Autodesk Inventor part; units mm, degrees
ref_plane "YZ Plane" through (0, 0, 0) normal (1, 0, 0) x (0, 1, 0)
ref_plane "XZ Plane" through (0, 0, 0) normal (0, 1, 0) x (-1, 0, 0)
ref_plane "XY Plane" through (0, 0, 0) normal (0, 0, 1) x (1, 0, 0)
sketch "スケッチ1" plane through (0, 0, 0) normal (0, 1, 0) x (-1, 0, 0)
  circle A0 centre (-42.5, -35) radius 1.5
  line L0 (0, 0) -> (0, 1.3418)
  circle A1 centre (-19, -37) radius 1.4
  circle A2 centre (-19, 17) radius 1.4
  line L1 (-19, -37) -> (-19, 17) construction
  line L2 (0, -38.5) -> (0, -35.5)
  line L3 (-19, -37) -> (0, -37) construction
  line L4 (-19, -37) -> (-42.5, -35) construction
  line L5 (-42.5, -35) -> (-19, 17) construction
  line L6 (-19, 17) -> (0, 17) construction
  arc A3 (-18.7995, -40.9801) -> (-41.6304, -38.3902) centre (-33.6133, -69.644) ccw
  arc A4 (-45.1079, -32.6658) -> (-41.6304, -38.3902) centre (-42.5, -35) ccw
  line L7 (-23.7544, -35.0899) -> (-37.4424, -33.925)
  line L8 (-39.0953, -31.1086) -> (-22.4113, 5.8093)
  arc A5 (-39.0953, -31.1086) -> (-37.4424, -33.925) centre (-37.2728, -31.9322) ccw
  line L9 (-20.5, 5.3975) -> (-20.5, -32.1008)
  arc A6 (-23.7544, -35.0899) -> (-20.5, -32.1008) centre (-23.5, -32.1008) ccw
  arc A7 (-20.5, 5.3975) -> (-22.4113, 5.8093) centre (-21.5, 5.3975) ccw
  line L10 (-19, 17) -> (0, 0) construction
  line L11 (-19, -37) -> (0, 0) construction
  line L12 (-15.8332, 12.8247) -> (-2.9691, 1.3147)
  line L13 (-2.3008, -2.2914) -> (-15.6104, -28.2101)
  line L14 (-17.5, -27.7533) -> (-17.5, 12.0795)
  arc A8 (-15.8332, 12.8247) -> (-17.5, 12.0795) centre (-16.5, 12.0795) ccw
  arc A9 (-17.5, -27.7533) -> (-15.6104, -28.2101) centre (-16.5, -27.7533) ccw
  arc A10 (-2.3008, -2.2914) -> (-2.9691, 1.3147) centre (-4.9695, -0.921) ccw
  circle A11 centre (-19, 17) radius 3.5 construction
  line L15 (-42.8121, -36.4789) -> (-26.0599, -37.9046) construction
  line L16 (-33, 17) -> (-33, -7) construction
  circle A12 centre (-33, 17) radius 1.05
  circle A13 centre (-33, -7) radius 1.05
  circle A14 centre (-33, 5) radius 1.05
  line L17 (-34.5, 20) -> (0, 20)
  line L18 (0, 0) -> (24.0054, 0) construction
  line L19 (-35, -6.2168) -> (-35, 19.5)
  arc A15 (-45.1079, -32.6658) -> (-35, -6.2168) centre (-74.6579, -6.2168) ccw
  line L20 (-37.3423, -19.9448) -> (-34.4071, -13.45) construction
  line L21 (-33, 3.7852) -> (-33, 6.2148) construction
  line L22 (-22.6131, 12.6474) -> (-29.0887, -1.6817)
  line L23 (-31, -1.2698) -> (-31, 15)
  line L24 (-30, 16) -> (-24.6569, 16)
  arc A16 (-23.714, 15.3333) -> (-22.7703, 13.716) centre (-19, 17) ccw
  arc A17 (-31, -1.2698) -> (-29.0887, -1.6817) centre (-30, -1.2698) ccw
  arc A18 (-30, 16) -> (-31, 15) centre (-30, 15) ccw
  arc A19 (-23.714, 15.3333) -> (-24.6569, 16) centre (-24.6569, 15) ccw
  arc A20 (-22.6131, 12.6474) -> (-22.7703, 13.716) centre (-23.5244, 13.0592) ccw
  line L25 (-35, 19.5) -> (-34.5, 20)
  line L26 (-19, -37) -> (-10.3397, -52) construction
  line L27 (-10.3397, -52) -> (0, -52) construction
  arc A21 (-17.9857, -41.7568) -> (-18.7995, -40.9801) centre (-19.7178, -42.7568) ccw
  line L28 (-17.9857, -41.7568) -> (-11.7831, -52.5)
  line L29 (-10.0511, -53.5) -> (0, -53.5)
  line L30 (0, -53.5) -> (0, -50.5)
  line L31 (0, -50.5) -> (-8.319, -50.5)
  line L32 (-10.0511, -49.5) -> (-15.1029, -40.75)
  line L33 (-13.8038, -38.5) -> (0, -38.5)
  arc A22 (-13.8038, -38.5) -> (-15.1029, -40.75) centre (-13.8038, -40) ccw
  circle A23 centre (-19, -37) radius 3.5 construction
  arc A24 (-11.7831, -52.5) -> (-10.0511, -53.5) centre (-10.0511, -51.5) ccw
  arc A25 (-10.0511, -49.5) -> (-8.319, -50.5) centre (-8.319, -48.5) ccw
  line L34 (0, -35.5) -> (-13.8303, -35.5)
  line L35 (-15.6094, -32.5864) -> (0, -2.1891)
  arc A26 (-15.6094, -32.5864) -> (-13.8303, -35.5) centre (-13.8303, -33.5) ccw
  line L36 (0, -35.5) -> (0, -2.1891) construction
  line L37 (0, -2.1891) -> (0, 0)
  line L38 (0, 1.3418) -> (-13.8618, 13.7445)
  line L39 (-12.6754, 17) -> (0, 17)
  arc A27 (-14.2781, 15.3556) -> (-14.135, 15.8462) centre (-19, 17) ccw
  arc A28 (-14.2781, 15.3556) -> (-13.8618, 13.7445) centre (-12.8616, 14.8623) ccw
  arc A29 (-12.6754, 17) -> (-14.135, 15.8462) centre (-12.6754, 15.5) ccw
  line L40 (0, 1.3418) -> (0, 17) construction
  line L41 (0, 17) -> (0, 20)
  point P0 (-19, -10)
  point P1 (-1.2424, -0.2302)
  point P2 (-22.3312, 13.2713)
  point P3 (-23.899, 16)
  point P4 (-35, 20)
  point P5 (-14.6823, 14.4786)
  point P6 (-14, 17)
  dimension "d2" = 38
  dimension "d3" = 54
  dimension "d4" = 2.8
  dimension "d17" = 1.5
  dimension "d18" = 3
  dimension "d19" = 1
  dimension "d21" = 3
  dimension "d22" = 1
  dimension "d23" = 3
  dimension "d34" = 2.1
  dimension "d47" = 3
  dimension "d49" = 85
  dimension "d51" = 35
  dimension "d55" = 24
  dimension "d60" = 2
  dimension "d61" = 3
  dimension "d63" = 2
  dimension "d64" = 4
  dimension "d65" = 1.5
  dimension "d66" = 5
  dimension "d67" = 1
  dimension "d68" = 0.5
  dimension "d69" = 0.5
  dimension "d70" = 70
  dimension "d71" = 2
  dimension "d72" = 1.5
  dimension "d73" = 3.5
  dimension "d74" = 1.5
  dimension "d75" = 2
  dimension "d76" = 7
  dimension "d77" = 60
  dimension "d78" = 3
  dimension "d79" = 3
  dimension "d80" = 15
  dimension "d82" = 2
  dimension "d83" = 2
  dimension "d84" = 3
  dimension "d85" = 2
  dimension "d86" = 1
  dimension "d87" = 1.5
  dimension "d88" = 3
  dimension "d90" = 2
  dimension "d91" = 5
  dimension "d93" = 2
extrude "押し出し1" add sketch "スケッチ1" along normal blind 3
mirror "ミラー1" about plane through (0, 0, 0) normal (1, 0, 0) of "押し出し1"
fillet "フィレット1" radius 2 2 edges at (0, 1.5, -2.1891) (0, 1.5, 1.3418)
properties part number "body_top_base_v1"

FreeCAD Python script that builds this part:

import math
import FreeCAD as App
import Part
import Sketcher

V = App.Vector
Q = App.Units.Quantity


def edges_at(feature, points):
    """Names of the edges that pass closest to the given points."""
    edges = feature.Shape.Edges
    near = lambda p: min(range(len(edges)), key=lambda i: edges[i].distToShape(Part.Vertex(*p))[0])
    return sorted({f"Edge{near(p) + 1}" for p in points})

doc = App.newDocument("Part")
params = doc.addObject("Spreadsheet::Sheet", "Params")
for row, (alias, value) in enumerate([
    ("sketch1_diameter", "3 mm"),
    ("sketch1_radius", "2 mm"),
    ("sketch1_radius2", "3 mm"),
    ("sketch1_radius3", "1 mm"),
    ("sketch1_radius4", "5 mm"),
    ("pad1_length", "3 mm"),
    ("fillet_radius", "2 mm"),
], start=1):
    params.set(f"A{row}", alias)
    params.set(f"B{row}", "=" + value)
    params.setAlias(f"B{row}", alias)

body = doc.addObject("PartDesign::Body", "Body")

# Sketch on XZ plane
sketch1 = body.newObject("Sketcher::SketchObject", "Sketch")
sketch1.AttachmentSupport = (doc.getObject("XZ_Plane"), [""])
sketch1.MapMode = "FlatFace"
sketch1.addGeometry(Part.LineSegment(V(0, -2.2, 0), V(0, 1.3, 0)), False)
sketch1.addGeometry(Part.LineSegment(V(0, 1.3, 0), V(13.9, 13.7, 0)), False)
sketch1.addGeometry(Part.ArcOfCircle(Part.Circle(V(12.9, 14.9, 0), V(0, 0, 1), 1.5), math.radians(-48), math.radians(19)), False)
sketch1.addGeometry(Part.ArcOfCircle(Part.Circle(V(19, 17, 0), V(0, 0, 1), 5), math.radians(-166.69), math.radians(-160.79)), False)
sketch1.addGeometry(Part.ArcOfCircle(Part.Circle(V(12.7, 15.5, 0), V(0, 0, 1), 1.5), math.radians(13), math.radians(90)), False)
sketch1.addGeometry(Part.LineSegment(V(12.7, 17, 0), V(0, 17, 0)), False)
sketch1.addGeometry(Part.LineSegment(V(0, 17, 0), V(0, 20, 0)), False)
sketch1.addGeometry(Part.LineSegment(V(0, 20, 0), V(34.5, 20, 0)), False)
sketch1.addGeometry(Part.LineSegment(V(34.5, 20, 0), V(35, 19.5, 0)), False)
sketch1.addGeometry(Part.LineSegment(V(35, 19.5, 0), V(35, -6.2, 0)), False)
sketch1.addGeometry(Part.ArcOfCircle(Part.Circle(V(74.7, -6.2, 0), V(0, 0, 1), 39.7), math.radians(180), math.radians(222)), False)
sketch1.addGeometry(Part.ArcOfCircle(Part.Circle(V(42.5, -35, 0), V(0, 0, 1), 3.5), math.radians(-104), math.radians(42)), False)
sketch1.addGeometry(Part.ArcOfCircle(Part.Circle(V(33.6, -69.6, 0), V(0, 0, 1), 32.3), math.radians(76), math.radians(117)), False)
sketch1.addGeometry(Part.ArcOfCircle(Part.Circle(V(19.7, -42.8, 0), V(0, 0, 1), 2), math.radians(117), math.radians(150)), False)
sketch1.addGeometry(Part.LineSegment(V(18, -41.8, 0), V(11.8, -52.5, 0)), False)
sketch1.addGeometry(Part.ArcOfCircle(Part.Circle(V(10.1, -51.5, 0), V(0, 0, 1), 2), math.radians(-90), math.radians(-30)), False)
sketch1.addGeometry(Part.LineSegment(V(10.1, -53.5, 0), V(0, -53.5, 0)), False)
sketch1.addGeometry(Part.LineSegment(V(0, -53.5, 0), V(0, -50.5, 0)), False)
sketch1.addGeometry(Part.LineSegment(V(0, -50.5, 0), V(8.3, -50.5, 0)), False)
sketch1.addGeometry(Part.ArcOfCircle(Part.Circle(V(8.3, -48.5, 0), V(0, 0, 1), 2), math.radians(-90), math.radians(-30)), False)
sketch1.addGeometry(Part.LineSegment(V(10.1, -49.5, 0), V(15.1, -40.8, 0)), False)
sketch1.addGeometry(Part.ArcOfCircle(Part.Circle(V(13.8, -40, 0), V(0, 0, 1), 1.5), math.radians(-30), math.radians(90)), False)
sketch1.addGeometry(Part.LineSegment(V(13.8, -38.5, 0), V(0, -38.5, 0)), False)
sketch1.addGeometry(Part.LineSegment(V(0, -38.5, 0), V(0, -35.5, 0)), False)
sketch1.addGeometry(Part.LineSegment(V(0, -35.5, 0), V(13.8, -35.5, 0)), False)
sketch1.addGeometry(Part.ArcOfCircle(Part.Circle(V(13.8, -33.5, 0), V(0, 0, 1), 2), math.radians(-90), math.radians(27)), False)
sketch1.addGeometry(Part.LineSegment(V(15.6, -32.6, 0), V(0, -2.2, 0)), False)
sketch1.addGeometry(Part.Circle(V(42.5, -35, 0), V(0, 0, 1), 1.5), False)
sketch1.addGeometry(Part.Circle(V(19, -37, 0), V(0, 0, 1), 1.4), False)
sketch1.addGeometry(Part.ArcOfCircle(Part.Circle(V(23.5, -32.1, 0), V(0, 0, 1), 3), math.radians(180), math.radians(275)), False)
sketch1.addGeometry(Part.LineSegment(V(23.8, -35.1, 0), V(37.4, -33.9, 0)), False)
sketch1.addGeometry(Part.ArcOfCircle(Part.Circle(V(37.3, -31.9, 0), V(0, 0, 1), 2), math.radians(-85), math.radians(24)), False)
sketch1.addGeometry(Part.LineSegment(V(39.1, -31.1, 0), V(22.4, 5.8, 0)), False)
sketch1.addGeometry(Part.ArcOfCircle(Part.Circle(V(21.5, 5.4, 0), V(0, 0, 1), 1), math.radians(24), math.radians(180)), False)
sketch1.addGeometry(Part.LineSegment(V(20.5, 5.4, 0), V(20.5, -32.1, 0)), False)
sketch1.addGeometry(Part.Circle(V(33, -7, 0), V(0, 0, 1), 1.1), False)
sketch1.addGeometry(Part.Circle(V(33, 5, 0), V(0, 0, 1), 1.1), False)
sketch1.addGeometry(Part.ArcOfCircle(Part.Circle(V(23.5, 13.1, 0), V(0, 0, 1), 1), math.radians(139), math.radians(204)), False)
sketch1.addGeometry(Part.LineSegment(V(22.6, 12.6, 0), V(29.1, -1.7, 0)), False)
sketch1.addGeometry(Part.ArcOfCircle(Part.Circle(V(30, -1.3, 0), V(0, 0, 1), 1), math.radians(-156), math.radians(0)), False)
sketch1.addGeometry(Part.LineSegment(V(31, -1.3, 0), V(31, 15, 0)), False)
sketch1.addGeometry(Part.ArcOfCircle(Part.Circle(V(30, 15, 0), V(0, 0, 1), 1), math.radians(0), math.radians(90)), False)
sketch1.addGeometry(Part.LineSegment(V(30, 16, 0), V(24.7, 16, 0)), False)
sketch1.addGeometry(Part.ArcOfCircle(Part.Circle(V(24.7, 15, 0), V(0, 0, 1), 1), math.radians(90), math.radians(161)), False)
sketch1.addGeometry(Part.ArcOfCircle(Part.Circle(V(19, 17, 0), V(0, 0, 1), 5), math.radians(-41), math.radians(-19)), False)
sketch1.addGeometry(Part.Circle(V(33, 17, 0), V(0, 0, 1), 1.1), False)
sketch1.addGeometry(Part.ArcOfCircle(Part.Circle(V(16.5, 12.1, 0), V(0, 0, 1), 1), math.radians(0), math.radians(132)), False)
sketch1.addGeometry(Part.LineSegment(V(15.8, 12.8, 0), V(3, 1.3, 0)), False)
sketch1.addGeometry(Part.ArcOfCircle(Part.Circle(V(5, -0.9, 0), V(0, 0, 1), 3), math.radians(132), math.radians(207)), False)
sketch1.addGeometry(Part.LineSegment(V(2.3, -2.3, 0), V(15.6, -28.2, 0)), False)
sketch1.addGeometry(Part.ArcOfCircle(Part.Circle(V(16.5, -27.8, 0), V(0, 0, 1), 1), math.radians(-153), math.radians(0)), False)
sketch1.addGeometry(Part.LineSegment(V(17.5, -27.8, 0), V(17.5, 12.1, 0)), False)
sketch1.addGeometry(Part.Circle(V(19, 17, 0), V(0, 0, 1), 1.4), False)
sketch1.addConstraint(Sketcher.Constraint("Coincident", 0, 2, 1, 1))
sketch1.addConstraint(Sketcher.Constraint("Tangent", 1, 2, 2, 1))
sketch1.addConstraint(Sketcher.Constraint("Tangent", 2, 2, 3, 2))
sketch1.addConstraint(Sketcher.Constraint("Coincident", 3, 1, 4, 1))
sketch1.addConstraint(Sketcher.Constraint("Tangent", 4, 2, 5, 1))
sketch1.addConstraint(Sketcher.Constraint("Coincident", 5, 2, 6, 1))
sketch1.addConstraint(Sketcher.Constraint("Coincident", 6, 2, 7, 1))
sketch1.addConstraint(Sketcher.Constraint("Coincident", 7, 2, 8, 1))
sketch1.addConstraint(Sketcher.Constraint("Coincident", 8, 2, 9, 1))
sketch1.addConstraint(Sketcher.Constraint("Tangent", 9, 2, 10, 1))
sketch1.addConstraint(Sketcher.Constraint("Tangent", 10, 2, 11, 2))
sketch1.addConstraint(Sketcher.Constraint("Tangent", 11, 1, 12, 1))
sketch1.addConstraint(Sketcher.Constraint("Tangent", 12, 2, 13, 1))
sketch1.addConstraint(Sketcher.Constraint("Tangent", 13, 2, 14, 1))
sketch1.addConstraint(Sketcher.Constraint("Tangent", 14, 2, 15, 2))
sketch1.addConstraint(Sketcher.Constraint("Tangent", 15, 1, 16, 1))
sketch1.addConstraint(Sketcher.Constraint("Coincident", 16, 2, 17, 1))
sketch1.addConstraint(Sketcher.Constraint("Coincident", 17, 2, 18, 1))
sketch1.addConstraint(Sketcher.Constraint("Tangent", 18, 2, 19, 1))
sketch1.addConstraint(Sketcher.Constraint("Tangent", 19, 2, 20, 1))
sketch1.addConstraint(Sketcher.Constraint("Tangent", 20, 2, 21, 1))
sketch1.addConstraint(Sketcher.Constraint("Tangent", 21, 2, 22, 1))
sketch1.addConstraint(Sketcher.Constraint("Coincident", 22, 2, 23, 1))
sketch1.addConstraint(Sketcher.Constraint("Coincident", 23, 2, 24, 1))
sketch1.addConstraint(Sketcher.Constraint("Tangent", 24, 2, 25, 1))
sketch1.addConstraint(Sketcher.Constraint("Tangent", 25, 2, 26, 1))
sketch1.addConstraint(Sketcher.Constraint("Coincident", 26, 2, 0, 1))
sketch1.addConstraint(Sketcher.Constraint("Tangent", 29, 2, 30, 1))
sketch1.addConstraint(Sketcher.Constraint("Tangent", 30, 2, 31, 1))
sketch1.addConstraint(Sketcher.Constraint("Tangent", 31, 2, 32, 1))
sketch1.addConstraint(Sketcher.Constraint("Tangent", 32, 2, 33, 1))
sketch1.addConstraint(Sketcher.Constraint("Tangent", 33, 2, 34, 1))
sketch1.addConstraint(Sketcher.Constraint("Tangent", 34, 2, 29, 1))
sketch1.addConstraint(Sketcher.Constraint("Tangent", 37, 2, 38, 1))
sketch1.addConstraint(Sketcher.Constraint("Tangent", 38, 2, 39, 1))
sketch1.addConstraint(Sketcher.Constraint("Tangent", 39, 2, 40, 1))
sketch1.addConstraint(Sketcher.Constraint("Tangent", 40, 2, 41, 1))
sketch1.addConstraint(Sketcher.Constraint("Tangent", 41, 2, 42, 1))
sketch1.addConstraint(Sketcher.Constraint("Tangent", 42, 2, 43, 1))
sketch1.addConstraint(Sketcher.Constraint("Tangent", 43, 2, 44, 2))
sketch1.addConstraint(Sketcher.Constraint("Tangent", 44, 1, 37, 1))
sketch1.addConstraint(Sketcher.Constraint("Tangent", 46, 2, 47, 1))
sketch1.addConstraint(Sketcher.Constraint("Tangent", 47, 2, 48, 1))
sketch1.addConstraint(Sketcher.Constraint("Tangent", 48, 2, 49, 1))
sketch1.addConstraint(Sketcher.Constraint("Tangent", 49, 2, 50, 1))
sketch1.addConstraint(Sketcher.Constraint("Tangent", 50, 2, 51, 1))
sketch1.addConstraint(Sketcher.Constraint("Tangent", 51, 2, 46, 1))
sketch1.addConstraint(Sketcher.Constraint("Vertical", 0))
sketch1.addConstraint(Sketcher.Constraint("Horizontal", 5))
sketch1.addConstraint(Sketcher.Constraint("Vertical", 6))
sketch1.addConstraint(Sketcher.Constraint("Horizontal", 7))
sketch1.addConstraint(Sketcher.Constraint("Vertical", 9))
sketch1.addConstraint(Sketcher.Constraint("Horizontal", 16))
sketch1.addConstraint(Sketcher.Constraint("Vertical", 17))
sketch1.addConstraint(Sketcher.Constraint("Horizontal", 18))
sketch1.addConstraint(Sketcher.Constraint("Horizontal", 22))
sketch1.addConstraint(Sketcher.Constraint("Vertical", 23))
sketch1.addConstraint(Sketcher.Constraint("Horizontal", 24))
sketch1.addConstraint(Sketcher.Constraint("Vertical", 34))
sketch1.addConstraint(Sketcher.Constraint("Vertical", 40))
sketch1.addConstraint(Sketcher.Constraint("Horizontal", 42))
sketch1.addConstraint(Sketcher.Constraint("Vertical", 51))
sketch1.addConstraint(Sketcher.Constraint("Coincident", 27, 3, 11, 3))
sketch1.addConstraint(Sketcher.Constraint("Coincident", 52, 3, 44, 3))
sketch1.addConstraint(Sketcher.Constraint("Equal", 2, 4))
sketch1.addConstraint(Sketcher.Constraint("Equal", 13, 15))
sketch1.addConstraint(Sketcher.Constraint("Equal", 15, 19))
sketch1.addConstraint(Sketcher.Constraint("Equal", 4, 21))
sketch1.addConstraint(Sketcher.Constraint("Equal", 19, 25))
sketch1.addConstraint(Sketcher.Constraint("Equal", 21, 27))
sketch1.addConstraint(Sketcher.Constraint("Equal", 25, 31))
sketch1.addConstraint(Sketcher.Constraint("Equal", 35, 36))
sketch1.addConstraint(Sketcher.Constraint("Equal", 33, 37))
sketch1.addConstraint(Sketcher.Constraint("Equal", 37, 39))
sketch1.addConstraint(Sketcher.Constraint("Equal", 39, 41))
sketch1.addConstraint(Sketcher.Constraint("Equal", 41, 43))
sketch1.addConstraint(Sketcher.Constraint("Equal", 36, 45))
sketch1.addConstraint(Sketcher.Constraint("Equal", 43, 46))
sketch1.addConstraint(Sketcher.Constraint("Equal", 29, 48))
sketch1.addConstraint(Sketcher.Constraint("Equal", 46, 50))
sketch1.addConstraint(Sketcher.Constraint("Equal", 28, 52))
sketch1.addConstraint(Sketcher.Constraint("PointOnObject", 0, 2, -2))
sketch1.addConstraint(Sketcher.Constraint("PointOnObject", 5, 2, -2))
sketch1.addConstraint(Sketcher.Constraint("PointOnObject", 16, 2, -2))
sketch1.addConstraint(Sketcher.Constraint("PointOnObject", 22, 2, -2))
sketch1.addConstraint(Sketcher.Constraint("Parallel", 14, 20))
sketch1.addConstraint(Sketcher.Constraint("Parallel", 32, 38))
sketch1.addConstraint(Sketcher.Constraint("Parallel", 1, 47))
sketch1.addConstraint(Sketcher.Constraint("Parallel", 26, 49))
sketch1.addConstraint(Sketcher.Constraint("Horizontal", 44, 3, 45, 3))
sketch1.addConstraint(Sketcher.Constraint("Horizontal", 52, 3, 4, 2))
sketch1.addConstraint(Sketcher.Constraint("Vertical", 35, 3, 36, 3))
sketch1.addConstraint(Sketcher.Constraint("Vertical", 28, 3, 44, 3))
sketch1.addConstraint(Sketcher.Constraint("Vertical", 36, 3, 45, 3))
sketch1.addConstraint(Sketcher.Constraint("Vertical", 15, 1, 19, 2))
sketch1.addConstraint(Sketcher.Constraint("Equal", 6, 17))
sketch1.addConstraint(Sketcher.Constraint("Equal", 17, 23))
sketch1.addConstraint(Sketcher.Constraint("Diameter", 27, Q("3 mm")))
sketch1.addConstraint(Sketcher.Constraint("Radius", 13, Q("2 mm")))
sketch1.addConstraint(Sketcher.Constraint("Radius", 29, Q("3 mm")))
sketch1.addConstraint(Sketcher.Constraint("Radius", 33, Q("1 mm")))
sketch1.addConstraint(Sketcher.Constraint("Radius", 44, Q("5 mm")))
sketch1.addConstraint(Sketcher.Constraint("Diameter", 28, Q("2.8 mm")))
sketch1.addConstraint(Sketcher.Constraint("Diameter", 35, Q("2.1 mm")))
sketch1.addConstraint(Sketcher.Constraint("Radius", 11, Q("3.5 mm")))
sketch1.addConstraint(Sketcher.Constraint("DistanceY", 6, 1, 6, 2, Q("3 mm")))
sketch1.addConstraint(Sketcher.Constraint("Angle", 20, Q("60 deg")))
sketch1.addConstraint(Sketcher.Constraint("DistanceY", 11, 3, -1, 1, Q("35 mm")))
sketch1.addConstraint(Sketcher.Constraint("DistanceY", 35, 3, -1, 1, Q("7 mm")))
sketch1.addConstraint(Sketcher.Constraint("DistanceY", -1, 1, 36, 3, Q("5 mm")))
sketch1.addConstraint(Sketcher.Constraint("DistanceY", -1, 1, 41, 3, Q("15 mm")))
sketch1.addConstraint(Sketcher.Constraint("DistanceX", -1, 1, 8, 2, Q("35 mm")))
sketch1.addConstraint(Sketcher.Constraint("Angle", 8, Q("-45 deg")))
sketch1.addConstraint(Sketcher.Constraint("DistanceX", 7, 1, 7, 2, Q("34.5 mm")))
sketch1.addConstraint(Sketcher.Constraint("DistanceY", 21, 3, -1, 1, Q("40 mm")))
sketch1.addConstraint(Sketcher.Constraint("DistanceX", -1, 1, 28, 3, Q("19 mm")))
sketch1.addConstraint(Sketcher.Constraint("DistanceY", 28, 3, -1, 1, Q("37 mm")))
sketch1.addConstraint(Sketcher.Constraint("DistanceX", -1, 1, 35, 3, Q("33 mm")))
sketch1.addConstraint(Sketcher.Constraint("DistanceX", -1, 1, 39, 3, Q("30 mm")))
sketch1.addConstraint(Sketcher.Constraint("DistanceY", -1, 1, 44, 3, Q("17 mm")))
sketch1.addConstraint(Sketcher.Constraint("Radius", 10, Q("39.658 mm")))
sketch1.addConstraint(Sketcher.Constraint("DistanceX", -1, 1, 11, 3, Q("42.5 mm")))
sketch1.addConstraint(Sketcher.Constraint("DistanceY", 15, 3, -1, 1, Q("51.5 mm")))
sketch1.addConstraint(Sketcher.Constraint("DistanceX", -1, 1, 29, 3, Q("23.5 mm")))
sketch1.addConstraint(Sketcher.Constraint("DistanceX", -1, 1, 46, 3, Q("16.5 mm")))
sketch1.addConstraint(Sketcher.Constraint("Angle", 1, Q("41.8203 deg")))
sketch1.addConstraint(Sketcher.Constraint("Angle", 26, Q("117.181 deg")))
sketch1.addConstraint(Sketcher.Constraint("Angle", 32, Q("114.3192 deg")))
sketch1.addConstraint(Sketcher.Constraint("Radius", 3, Q("4.9654 mm")))
sketch1.addConstraint(Sketcher.Constraint("Radius", 12, Q("32.2656 mm")))
sketch1.addConstraint(Sketcher.Constraint("DistanceX", 16, 2, 16, 1, Q("10.051 mm")))
sketch1.addConstraint(Sketcher.Constraint("DistanceY", 0, 1, 0, 2, Q("3.531 mm")))
sketch1.addConstraint(Sketcher.Constraint("DistanceY", 12, 2, -1, 1, Q("40.98 mm")))
sketch1.addConstraint(Sketcher.Constraint("DistanceY", 29, 2, -1, 1, Q("35.09 mm")))
sketch1.addConstraint(Sketcher.Constraint("DistanceY", 49, 2, -1, 1, Q("28.21 mm")))
sketch1.addConstraint(Sketcher.Constraint("Distance", 26, Q("34.171 mm")))
sketch1.addConstraint(Sketcher.Constraint("DistanceX", 5, 2, 5, 1, Q("12.6754 mm")))
sketch1.addConstraint(Sketcher.Constraint("DistanceY", 34, 2, 34, 1, Q("37.4983 mm")))
sketch1.addConstraint(Sketcher.Constraint("DistanceY", 40, 1, 40, 2, Q("16.2698 mm")))
sketch1.addConstraint(Sketcher.Constraint("DistanceY", 51, 1, 51, 2, Q("39.8328 mm")))
sketch1.addConstraint(Sketcher.Constraint("DistanceX", -1, 1, 3, 3, Q("18.967 mm")))
sketch1.addConstraint(Sketcher.Constraint("DistanceX", -1, 1, 3, 1, Q("14.135 mm")))
sketch1.addConstraint(Sketcher.Constraint("DistanceY", 30, 2, -1, 1, Q("33.925 mm")))
sketch1.setExpression("Constraints[97]", "Params.sketch1_diameter")
sketch1.setExpression("Constraints[98]", "Params.sketch1_radius")
sketch1.setExpression("Constraints[99]", "Params.sketch1_radius2")
sketch1.setExpression("Constraints[100]", "Params.sketch1_radius3")
sketch1.setExpression("Constraints[101]", "Params.sketch1_radius4")
pad1 = body.newObject("PartDesign::Pad", "Pad")
pad1.Profile = sketch1
pad1.setExpression("Length", "Params.pad1_length")
pad1.Reversed = True
doc.recompute()

mirrored = body.newObject("PartDesign::Mirrored", "Mirrored")
mirrored.Originals = [pad1]
mirrored.MirrorPlane = (doc.getObject("YZ_Plane"), [""])
body.Tip = mirrored
doc.recompute()

fillet = body.newObject("PartDesign::Fillet", "Fillet")
fillet.Base = (mirrored, edges_at(mirrored, [(0, 1.5, -2.189), (0, 1.5, 1.342)]))
fillet.setExpression("Radius", "Params.fillet_radius")

doc.recompute()
